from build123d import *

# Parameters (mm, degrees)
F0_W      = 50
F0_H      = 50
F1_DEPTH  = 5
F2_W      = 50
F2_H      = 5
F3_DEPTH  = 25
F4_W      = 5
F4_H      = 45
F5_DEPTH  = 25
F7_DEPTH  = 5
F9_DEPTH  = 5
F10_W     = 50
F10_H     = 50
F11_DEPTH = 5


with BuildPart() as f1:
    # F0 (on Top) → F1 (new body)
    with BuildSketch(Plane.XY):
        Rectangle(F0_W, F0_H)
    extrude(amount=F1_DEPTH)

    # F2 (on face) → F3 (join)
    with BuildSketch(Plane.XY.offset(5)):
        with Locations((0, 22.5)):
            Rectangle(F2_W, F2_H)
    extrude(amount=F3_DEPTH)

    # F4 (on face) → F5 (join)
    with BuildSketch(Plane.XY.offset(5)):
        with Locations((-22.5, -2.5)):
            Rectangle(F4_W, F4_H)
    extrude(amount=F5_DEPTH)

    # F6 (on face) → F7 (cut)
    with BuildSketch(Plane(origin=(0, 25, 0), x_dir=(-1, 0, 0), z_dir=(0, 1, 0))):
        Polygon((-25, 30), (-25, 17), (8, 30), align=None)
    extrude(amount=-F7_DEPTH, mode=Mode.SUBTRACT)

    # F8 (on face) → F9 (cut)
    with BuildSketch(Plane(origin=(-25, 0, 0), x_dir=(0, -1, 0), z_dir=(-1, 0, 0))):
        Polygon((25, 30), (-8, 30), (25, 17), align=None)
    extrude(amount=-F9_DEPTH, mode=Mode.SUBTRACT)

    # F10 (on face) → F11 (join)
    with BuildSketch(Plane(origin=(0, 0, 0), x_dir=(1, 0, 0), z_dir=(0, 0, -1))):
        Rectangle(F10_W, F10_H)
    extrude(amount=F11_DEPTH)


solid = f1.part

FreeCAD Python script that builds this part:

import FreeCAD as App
import Part
import Sketcher
from FreeCAD import Vector
Q = App.Units.Quantity

doc = App.newDocument("Part")
body = doc.addObject("PartDesign::Body", "Body")

# Sketch on XY plane
sketch1 = body.newObject("Sketcher::SketchObject", "Sketch")
sketch1.AttachmentSupport = (doc.getObject("XY_Plane"), [""])
sketch1.MapMode = "FlatFace"
sketch1.addGeometry([
    Part.LineSegment(Vector(-25, 25, 0), Vector(-25, -25, 0)),
    Part.LineSegment(Vector(-25, -25, 0), Vector(25, -25, 0)),
    Part.LineSegment(Vector(25, -25, 0), Vector(25, 25, 0)),
    Part.LineSegment(Vector(25, 25, 0), Vector(-25, 25, 0)),
], False)
sketch1.addConstraint([
    Sketcher.Constraint("Coincident", 0, 2, 1, 1),
    Sketcher.Constraint("Coincident", 1, 2, 2, 1),
    Sketcher.Constraint("Coincident", 2, 2, 3, 1),
    Sketcher.Constraint("Coincident", 3, 2, 0, 1),
    Sketcher.Constraint("Vertical", 0),
    Sketcher.Constraint("Horizontal", 1),
    Sketcher.Constraint("Vertical", 2),
    Sketcher.Constraint("Horizontal", 3),
    Sketcher.Constraint("Symmetric", 0, 2, 2, 2, -1, 1),
    Sketcher.Constraint("Equal", 3, 0),
    Sketcher.Constraint("DistanceX", 1, 1, 1, 2, Q("50 mm")),
])
pad1 = body.newObject("PartDesign::Pad", "Pad")
pad1.Profile = sketch1
pad1.Length = 5

# Sketch on XY plane
sketch2 = body.newObject("Sketcher::SketchObject", "Sketch001")
sketch2.AttachmentSupport = (doc.getObject("XY_Plane"), [""])
sketch2.MapMode = "FlatFace"
sketch2.AttachmentOffset = App.Placement(Vector(0, 0, 5), App.Rotation())
sketch2.addGeometry([
    Part.LineSegment(Vector(-25, 25, 0), Vector(-25, 20, 0)),
    Part.LineSegment(Vector(-25, 20, 0), Vector(25, 20, 0)),
    Part.LineSegment(Vector(25, 20, 0), Vector(25, 25, 0)),
    Part.LineSegment(Vector(25, 25, 0), Vector(-25, 25, 0)),
], False)
sketch2.addConstraint([
    Sketcher.Constraint("Coincident", 0, 2, 1, 1),
    Sketcher.Constraint("Coincident", 1, 2, 2, 1),
    Sketcher.Constraint("Coincident", 2, 2, 3, 1),
    Sketcher.Constraint("Coincident", 3, 2, 0, 1),
    Sketcher.Constraint("Vertical", 0),
    Sketcher.Constraint("Horizontal", 1),
    Sketcher.Constraint("Vertical", 2),
    Sketcher.Constraint("Horizontal", 3),
    Sketcher.Constraint("DistanceX", 1, 1, 1, 2, Q("50 mm")),
    Sketcher.Constraint("DistanceY", 0, 2, 0, 1, Q("5 mm")),
    Sketcher.Constraint("DistanceX", 0, 2, -1, 1, Q("25 mm")),
    Sketcher.Constraint("DistanceY", -1, 1, 0, 2, Q("20 mm")),
])
pad2 = body.newObject("PartDesign::Pad", "Pad001")
pad2.Profile = sketch2
pad2.Length = 25

# Sketch on XY plane
sketch3 = body.newObject("Sketcher::SketchObject", "Sketch002")
sketch3.AttachmentSupport = (doc.getObject("XY_Plane"), [""])
sketch3.MapMode = "FlatFace"
sketch3.AttachmentOffset = App.Placement(Vector(0, 0, 5), App.Rotation())
sketch3.addGeometry([
    Part.LineSegment(Vector(-25, 20, 0), Vector(-25, -25, 0)),
    Part.LineSegment(Vector(-25, -25, 0), Vector(-20, -25, 0)),
    Part.LineSegment(Vector(-20, -25, 0), Vector(-20, 20, 0)),
    Part.LineSegment(Vector(-20, 20, 0), Vector(-25, 20, 0)),
], False)
sketch3.addConstraint([
    Sketcher.Constraint("Coincident", 0, 2, 1, 1),
    Sketcher.Constraint("Coincident", 1, 2, 2, 1),
    Sketcher.Constraint("Coincident", 2, 2, 3, 1),
    Sketcher.Constraint("Coincident", 3, 2, 0, 1),
    Sketcher.Constraint("Vertical", 0),
    Sketcher.Constraint("Horizontal", 1),
    Sketcher.Constraint("Vertical", 2),
    Sketcher.Constraint("Horizontal", 3),
    Sketcher.Constraint("DistanceX", 1, 1, 1, 2, Q("5 mm")),
    Sketcher.Constraint("DistanceY", 0, 2, 0, 1, Q("45 mm")),
    Sketcher.Constraint("DistanceX", 0, 2, -1, 1, Q("25 mm")),
    Sketcher.Constraint("DistanceY", 0, 2, -1, 1, Q("25 mm")),
])
pad3 = body.newObject("PartDesign::Pad", "Pad002")
pad3.Profile = sketch3
pad3.Length = 25

# Sketch on XZ plane
sketch4 = body.newObject("Sketcher::SketchObject", "Sketch003")
sketch4.AttachmentSupport = (doc.getObject("XZ_Plane"), [""])
sketch4.MapMode = "FlatFace"
sketch4.AttachmentOffset = App.Placement(Vector(0, 0, -25), App.Rotation())
sketch4.addGeometry([
    Part.LineSegment(Vector(25, 30, 0), Vector(25, 17, 0)),
    Part.LineSegment(Vector(25, 17, 0), Vector(-8, 30, 0)),
    Part.LineSegment(Vector(-8, 30, 0), Vector(25, 30, 0)),
], False)
sketch4.addConstraint([
    Sketcher.Constraint("Coincident", 0, 2, 1, 1),
    Sketcher.Constraint("Coincident", 1, 2, 2, 1),
    Sketcher.Constraint("Coincident", 2, 2, 0, 1),
    Sketcher.Constraint("Vertical", 0),
    Sketcher.Constraint("Horizontal", 2),
    Sketcher.Constraint("DistanceX", 2, 1, 2, 2, Q("33 mm")),
    Sketcher.Constraint("DistanceY", 0, 2, 0, 1, Q("13 mm")),
    Sketcher.Constraint("DistanceX", -1, 1, 0, 2, Q("25 mm")),
    Sketcher.Constraint("DistanceY", -1, 1, 0, 2, Q("17 mm")),
])
pocket1 = body.newObject("PartDesign::Pocket", "Pocket")
pocket1.Profile = sketch4
pocket1.Length = 5
pocket1.Reversed = True

# Sketch on YZ plane
sketch5 = body.newObject("Sketcher::SketchObject", "Sketch004")
sketch5.AttachmentSupport = (doc.getObject("YZ_Plane"), [""])
sketch5.MapMode = "FlatFace"
sketch5.AttachmentOffset = App.Placement(Vector(0, 0, -25), App.Rotation())
sketch5.addGeometry([
    Part.LineSegment(Vector(-25, 30, 0), Vector(8, 30, 0)),
    Part.LineSegment(Vector(8, 30, 0), Vector(-25, 17, 0)),
    Part.LineSegment(Vector(-25, 17, 0), Vector(-25, 30, 0)),
], False)
sketch5.addConstraint([
    Sketcher.Constraint("Coincident", 0, 2, 1, 1),
    Sketcher.Constraint("Coincident", 1, 2, 2, 1),
    Sketcher.Constraint("Coincident", 2, 2, 0, 1),
    Sketcher.Constraint("Horizontal", 0),
    Sketcher.Constraint("Vertical", 2),
    Sketcher.Constraint("DistanceX", 0, 1, 0, 2, Q("33 mm")),
    Sketcher.Constraint("DistanceY", 2, 1, 2, 2, Q("13 mm")),
    Sketcher.Constraint("DistanceX", -1, 1, 0, 2, Q("8 mm")),
    Sketcher.Constraint("DistanceY", -1, 1, 0, 2, Q("30 mm")),
])
pocket2 = body.newObject("PartDesign::Pocket", "Pocket001")
pocket2.Profile = sketch5
pocket2.Length = 5
pocket2.Reversed = True

# Sketch on XY plane
sketch6 = body.newObject("Sketcher::SketchObject", "Sketch005")
sketch6.AttachmentSupport = (doc.getObject("XY_Plane"), [""])
sketch6.MapMode = "FlatFace"
sketch6.addGeometry([
    Part.LineSegment(Vector(-25, -25, 0), Vector(-25, 25, 0)),
    Part.LineSegment(Vector(-25, 25, 0), Vector(25, 25, 0)),
    Part.LineSegment(Vector(25, 25, 0), Vector(25, -25, 0)),
    Part.LineSegment(Vector(25, -25, 0), Vector(-25, -25, 0)),
], False)
sketch6.addConstraint([
    Sketcher.Constraint("Coincident", 0, 2, 1, 1),
    Sketcher.Constraint("Coincident", 1, 2, 2, 1),
    Sketcher.Constraint("Coincident", 2, 2, 3, 1),
    Sketcher.Constraint("Coincident", 3, 2, 0, 1),
    Sketcher.Constraint("Vertical", 0),
    Sketcher.Constraint("Horizontal", 1),
    Sketcher.Constraint("Vertical", 2),
    Sketcher.Constraint("Horizontal", 3),
    Sketcher.Constraint("Symmetric", 0, 2, 2, 2, -1, 1),
    Sketcher.Constraint("Equal", 3, 0),
    Sketcher.Constraint("DistanceX", 1, 1, 1, 2, Q("50 mm")),
])
pad4 = body.newObject("PartDesign::Pad", "Pad003")
pad4.Profile = sketch6
pad4.Length = 5
pad4.Reversed = True

doc.recompute()
